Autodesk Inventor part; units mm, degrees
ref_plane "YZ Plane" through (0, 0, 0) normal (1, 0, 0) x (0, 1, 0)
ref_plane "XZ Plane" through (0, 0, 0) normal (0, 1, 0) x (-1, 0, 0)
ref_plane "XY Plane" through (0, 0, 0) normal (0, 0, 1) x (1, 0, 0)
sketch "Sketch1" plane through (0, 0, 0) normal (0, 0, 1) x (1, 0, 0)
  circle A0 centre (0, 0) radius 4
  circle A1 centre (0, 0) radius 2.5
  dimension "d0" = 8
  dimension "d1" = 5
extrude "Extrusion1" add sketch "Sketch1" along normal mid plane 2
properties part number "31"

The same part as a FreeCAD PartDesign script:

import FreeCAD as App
import Part
import Sketcher
Q = App.Units.Quantity

doc = App.newDocument("Part")
body = doc.addObject("PartDesign::Body", "Body")

# Sketch on XY plane
sketch1 = body.newObject("Sketcher::SketchObject", "Sketch")
sketch1.AttachmentSupport = (doc.getObject("XY_Plane"), [""])
sketch1.MapMode = "FlatFace"
sketch1.addGeometry(Part.Circle(App.Vector(0, 0, 0), App.Vector(0, 0, 1), 4), False)
sketch1.addGeometry(Part.Circle(App.Vector(0, 0, 0), App.Vector(0, 0, 1), 2.5), False)
sketch1.addConstraint(Sketcher.Constraint("Coincident", 0, 3, -1, 1))
sketch1.addConstraint(Sketcher.Constraint("Coincident", 1, 3, -1, 1))
sketch1.addConstraint(Sketcher.Constraint("Diameter", 0, Q("8 mm")))
sketch1.addConstraint(Sketcher.Constraint("Diameter", 1, Q("5 mm")))
pad1 = body.newObject("PartDesign::Pad", "Pad")
pad1.Profile = sketch1
pad1.Length = 2
pad1.Midplane = True

doc.recompute()
